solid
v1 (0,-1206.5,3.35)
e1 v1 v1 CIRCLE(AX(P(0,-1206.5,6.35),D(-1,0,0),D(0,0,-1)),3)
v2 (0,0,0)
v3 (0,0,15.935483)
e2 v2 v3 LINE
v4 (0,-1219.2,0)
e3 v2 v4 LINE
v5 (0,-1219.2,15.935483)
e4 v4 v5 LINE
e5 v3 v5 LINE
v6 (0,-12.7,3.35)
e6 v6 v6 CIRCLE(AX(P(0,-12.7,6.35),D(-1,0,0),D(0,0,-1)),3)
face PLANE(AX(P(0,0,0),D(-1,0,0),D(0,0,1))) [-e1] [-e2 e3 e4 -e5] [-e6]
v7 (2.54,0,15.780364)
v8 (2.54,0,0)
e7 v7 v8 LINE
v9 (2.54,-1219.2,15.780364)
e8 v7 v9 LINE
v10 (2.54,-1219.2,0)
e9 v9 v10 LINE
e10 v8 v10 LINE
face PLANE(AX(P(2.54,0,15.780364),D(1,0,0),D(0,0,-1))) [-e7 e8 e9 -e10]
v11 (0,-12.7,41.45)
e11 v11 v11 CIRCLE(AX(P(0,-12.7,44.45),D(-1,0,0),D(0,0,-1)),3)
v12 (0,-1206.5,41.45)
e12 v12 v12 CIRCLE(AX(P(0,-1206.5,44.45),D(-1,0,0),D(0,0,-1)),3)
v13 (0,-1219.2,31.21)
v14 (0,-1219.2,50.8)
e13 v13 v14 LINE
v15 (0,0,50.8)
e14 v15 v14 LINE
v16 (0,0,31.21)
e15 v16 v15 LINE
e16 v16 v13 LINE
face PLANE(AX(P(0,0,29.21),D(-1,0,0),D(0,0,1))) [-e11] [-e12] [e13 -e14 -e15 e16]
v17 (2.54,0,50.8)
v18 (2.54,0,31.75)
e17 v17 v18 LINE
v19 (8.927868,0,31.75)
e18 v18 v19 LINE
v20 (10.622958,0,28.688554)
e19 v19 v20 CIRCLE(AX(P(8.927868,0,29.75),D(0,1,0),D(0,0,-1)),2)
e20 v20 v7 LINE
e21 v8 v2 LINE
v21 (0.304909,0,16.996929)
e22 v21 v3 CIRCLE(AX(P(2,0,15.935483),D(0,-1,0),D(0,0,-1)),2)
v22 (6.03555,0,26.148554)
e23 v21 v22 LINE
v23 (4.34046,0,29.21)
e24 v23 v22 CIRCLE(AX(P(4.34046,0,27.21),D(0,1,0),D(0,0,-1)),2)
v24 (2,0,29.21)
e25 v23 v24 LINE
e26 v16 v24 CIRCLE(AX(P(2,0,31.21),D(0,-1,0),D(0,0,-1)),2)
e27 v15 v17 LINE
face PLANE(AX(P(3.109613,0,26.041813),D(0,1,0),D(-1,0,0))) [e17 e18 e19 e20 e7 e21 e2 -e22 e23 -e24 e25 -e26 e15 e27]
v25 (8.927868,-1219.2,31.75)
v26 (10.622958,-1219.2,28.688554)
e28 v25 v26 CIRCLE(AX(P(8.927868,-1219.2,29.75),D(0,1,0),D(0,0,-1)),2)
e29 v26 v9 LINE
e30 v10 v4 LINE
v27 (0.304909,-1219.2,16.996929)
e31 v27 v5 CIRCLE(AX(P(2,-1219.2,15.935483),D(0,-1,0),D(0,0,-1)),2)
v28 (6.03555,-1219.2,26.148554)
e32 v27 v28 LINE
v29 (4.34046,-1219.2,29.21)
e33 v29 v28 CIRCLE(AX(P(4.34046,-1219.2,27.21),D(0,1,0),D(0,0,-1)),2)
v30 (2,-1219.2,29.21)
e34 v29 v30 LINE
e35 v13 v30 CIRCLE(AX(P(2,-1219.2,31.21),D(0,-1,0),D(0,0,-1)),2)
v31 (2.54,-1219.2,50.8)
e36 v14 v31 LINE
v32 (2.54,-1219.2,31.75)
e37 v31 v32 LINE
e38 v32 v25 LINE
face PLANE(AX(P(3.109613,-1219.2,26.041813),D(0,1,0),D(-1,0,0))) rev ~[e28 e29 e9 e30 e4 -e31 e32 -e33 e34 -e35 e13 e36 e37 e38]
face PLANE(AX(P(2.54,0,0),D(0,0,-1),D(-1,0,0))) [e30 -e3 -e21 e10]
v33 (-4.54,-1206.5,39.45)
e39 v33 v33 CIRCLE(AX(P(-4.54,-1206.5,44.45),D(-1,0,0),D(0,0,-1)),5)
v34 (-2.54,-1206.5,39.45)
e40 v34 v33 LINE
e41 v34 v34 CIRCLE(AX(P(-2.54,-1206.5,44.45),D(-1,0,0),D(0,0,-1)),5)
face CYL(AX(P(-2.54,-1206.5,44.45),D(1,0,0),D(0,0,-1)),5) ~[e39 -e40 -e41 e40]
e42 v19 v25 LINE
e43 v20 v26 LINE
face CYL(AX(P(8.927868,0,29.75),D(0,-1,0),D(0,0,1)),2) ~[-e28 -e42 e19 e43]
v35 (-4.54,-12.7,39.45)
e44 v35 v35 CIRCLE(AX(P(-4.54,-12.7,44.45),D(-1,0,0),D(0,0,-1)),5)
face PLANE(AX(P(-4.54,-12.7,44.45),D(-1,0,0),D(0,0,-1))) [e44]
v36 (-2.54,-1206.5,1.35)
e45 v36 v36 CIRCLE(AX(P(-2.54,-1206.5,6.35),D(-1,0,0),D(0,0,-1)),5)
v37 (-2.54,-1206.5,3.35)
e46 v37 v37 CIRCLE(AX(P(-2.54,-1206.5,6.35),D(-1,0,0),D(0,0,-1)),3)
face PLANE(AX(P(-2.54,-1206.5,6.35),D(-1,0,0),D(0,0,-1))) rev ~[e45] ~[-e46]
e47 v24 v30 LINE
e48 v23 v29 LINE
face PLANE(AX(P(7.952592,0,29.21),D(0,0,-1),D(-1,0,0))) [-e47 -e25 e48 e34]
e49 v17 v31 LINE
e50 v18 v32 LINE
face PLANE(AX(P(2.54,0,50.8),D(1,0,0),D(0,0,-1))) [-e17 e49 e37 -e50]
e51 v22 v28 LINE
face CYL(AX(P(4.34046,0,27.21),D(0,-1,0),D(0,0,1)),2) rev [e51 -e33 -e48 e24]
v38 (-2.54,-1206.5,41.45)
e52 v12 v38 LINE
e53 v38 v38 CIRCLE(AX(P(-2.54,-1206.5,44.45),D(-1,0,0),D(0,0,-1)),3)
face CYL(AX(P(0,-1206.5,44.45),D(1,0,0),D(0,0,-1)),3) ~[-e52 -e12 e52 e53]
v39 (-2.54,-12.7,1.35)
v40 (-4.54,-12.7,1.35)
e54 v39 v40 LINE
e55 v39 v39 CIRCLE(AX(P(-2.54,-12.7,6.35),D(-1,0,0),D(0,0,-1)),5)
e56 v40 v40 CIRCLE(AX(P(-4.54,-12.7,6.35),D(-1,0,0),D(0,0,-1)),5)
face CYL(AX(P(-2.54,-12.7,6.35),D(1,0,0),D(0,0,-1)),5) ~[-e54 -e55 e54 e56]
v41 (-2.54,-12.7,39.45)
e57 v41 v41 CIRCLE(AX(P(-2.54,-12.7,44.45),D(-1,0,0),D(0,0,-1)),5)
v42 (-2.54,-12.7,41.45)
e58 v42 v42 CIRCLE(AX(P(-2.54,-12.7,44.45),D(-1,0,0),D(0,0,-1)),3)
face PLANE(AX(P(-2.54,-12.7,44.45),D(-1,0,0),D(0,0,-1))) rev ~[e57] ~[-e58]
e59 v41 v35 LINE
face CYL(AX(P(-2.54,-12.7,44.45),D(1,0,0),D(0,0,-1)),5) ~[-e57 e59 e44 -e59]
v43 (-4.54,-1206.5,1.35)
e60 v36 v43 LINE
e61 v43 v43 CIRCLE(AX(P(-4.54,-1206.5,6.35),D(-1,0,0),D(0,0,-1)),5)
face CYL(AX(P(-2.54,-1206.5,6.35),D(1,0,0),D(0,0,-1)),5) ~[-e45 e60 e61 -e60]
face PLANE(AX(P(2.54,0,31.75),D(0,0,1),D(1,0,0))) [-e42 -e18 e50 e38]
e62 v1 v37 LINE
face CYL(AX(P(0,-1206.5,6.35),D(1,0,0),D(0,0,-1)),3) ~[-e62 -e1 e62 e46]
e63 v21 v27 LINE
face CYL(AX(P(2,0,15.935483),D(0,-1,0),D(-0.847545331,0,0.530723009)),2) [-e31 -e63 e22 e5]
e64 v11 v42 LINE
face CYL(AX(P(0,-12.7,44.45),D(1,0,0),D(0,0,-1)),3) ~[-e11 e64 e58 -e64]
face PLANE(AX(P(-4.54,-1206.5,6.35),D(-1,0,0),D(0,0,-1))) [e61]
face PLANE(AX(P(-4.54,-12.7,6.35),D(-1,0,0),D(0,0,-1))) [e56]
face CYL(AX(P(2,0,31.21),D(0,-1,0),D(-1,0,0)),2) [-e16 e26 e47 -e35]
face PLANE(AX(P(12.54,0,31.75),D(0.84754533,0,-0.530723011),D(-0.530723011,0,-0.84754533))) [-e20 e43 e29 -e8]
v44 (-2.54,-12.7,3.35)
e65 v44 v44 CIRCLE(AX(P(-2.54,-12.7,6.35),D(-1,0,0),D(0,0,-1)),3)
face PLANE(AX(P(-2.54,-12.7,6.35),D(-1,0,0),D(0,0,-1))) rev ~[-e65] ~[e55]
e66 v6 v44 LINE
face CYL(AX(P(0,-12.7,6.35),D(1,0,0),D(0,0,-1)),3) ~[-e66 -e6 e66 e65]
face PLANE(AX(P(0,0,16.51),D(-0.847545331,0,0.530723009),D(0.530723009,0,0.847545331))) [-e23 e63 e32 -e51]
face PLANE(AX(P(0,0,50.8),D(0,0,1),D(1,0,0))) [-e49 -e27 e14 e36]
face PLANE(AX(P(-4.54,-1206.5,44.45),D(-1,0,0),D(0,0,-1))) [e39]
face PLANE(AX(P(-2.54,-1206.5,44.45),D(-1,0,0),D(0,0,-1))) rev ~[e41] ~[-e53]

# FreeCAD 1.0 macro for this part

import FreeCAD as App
import Part
import Sketcher

V = App.Vector
Q = App.Units.Quantity


def edges_at(feature, points):
    """Names of the edges that pass closest to the given points."""
    edges = feature.Shape.Edges
    near = lambda p: min(range(len(edges)), key=lambda i: edges[i].distToShape(Part.Vertex(*p))[0])
    return sorted({f"Edge{near(p) + 1}" for p in points})

doc = App.newDocument("Part")
body = doc.addObject("PartDesign::Body", "Body")

# Sketch on XZ plane
sketch1 = body.newObject("Sketcher::SketchObject", "Sketch")
sketch1.AttachmentSupport = (doc.getObject("XZ_Plane"), [""])
sketch1.MapMode = "FlatFace"
sketch1.addGeometry([
    Part.LineSegment(V(0, 16.5, 0), V(0, 0, 0)),  # 0
    Part.LineSegment(V(0, 0, 0), V(2.5, 0, 0)),  # 1
    Part.LineSegment(V(2.5, 0, 0), V(2.5, 15.8, 0)),  # 2
    Part.LineSegment(V(2.5, 15.8, 0), V(12.5, 31.8, 0)),  # 3
    Part.LineSegment(V(12.5, 31.8, 0), V(2.5, 31.8, 0)),  # 4
    Part.LineSegment(V(2.5, 31.8, 0), V(2.5, 50.8, 0)),  # 5
    Part.LineSegment(V(2.5, 50.8, 0), V(0, 50.8, 0)),  # 6
    Part.LineSegment(V(0, 50.8, 0), V(0, 29.2, 0)),  # 7
    Part.LineSegment(V(0, 29.2, 0), V(8, 29.2, 0)),  # 8
    Part.LineSegment(V(8, 29.2, 0), V(0, 16.5, 0)),  # 9
], False)
sketch1.addConstraint([
    Sketcher.Constraint("Coincident", 0, 2, 1, 1),
    Sketcher.Constraint("Coincident", 1, 2, 2, 1),
    Sketcher.Constraint("Coincident", 2, 2, 3, 1),
    Sketcher.Constraint("Coincident", 3, 2, 4, 1),
    Sketcher.Constraint("Coincident", 4, 2, 5, 1),
    Sketcher.Constraint("Coincident", 5, 2, 6, 1),
    Sketcher.Constraint("Coincident", 6, 2, 7, 1),
    Sketcher.Constraint("Coincident", 7, 2, 8, 1),
    Sketcher.Constraint("Coincident", 8, 2, 9, 1),
    Sketcher.Constraint("Coincident", 9, 2, 0, 1),
    Sketcher.Constraint("Vertical", 0),
    Sketcher.Constraint("Horizontal", 1),
    Sketcher.Constraint("Vertical", 2),
    Sketcher.Constraint("Horizontal", 4),
    Sketcher.Constraint("Vertical", 5),
    Sketcher.Constraint("Horizontal", 6),
    Sketcher.Constraint("Vertical", 7),
    Sketcher.Constraint("Horizontal", 8),
    Sketcher.Constraint("Coincident", 0, 2, -1, 1),
    Sketcher.Constraint("PointOnObject", 6, 2, -2),
    Sketcher.Constraint("Parallel", 3, 9),
    Sketcher.Constraint("Vertical", 2, 2, 4, 2),
    Sketcher.Constraint("DistanceX", 1, 1, 1, 2, Q("0.1 in")),
    Sketcher.Constraint("DistanceY", -1, 1, 5, 2, Q("2 in")),
    Sketcher.Constraint("DistanceY", 0, 2, 0, 1, Q("0.65 in")),
    Sketcher.Constraint("DistanceY", 5, 1, 5, 2, Q("0.75 in")),
    Sketcher.Constraint("DistanceY", 7, 2, 7, 1, Q("0.85 in")),
    Sketcher.Constraint("DistanceX", 4, 2, 4, 1, 10.0),
    Sketcher.Constraint("Distance", 3, 18.842221),
])
pad1 = body.newObject("PartDesign::Pad", "Pad")
pad1.Profile = sketch1
pad1.Length = Q("48 in")

# Sketch on YZ plane
sketch2 = body.newObject("Sketcher::SketchObject", "Sketch001")
sketch2.AttachmentSupport = (doc.getObject("YZ_Plane"), [""])
sketch2.MapMode = "FlatFace"
sketch2.addGeometry([
    Part.Circle(V(-12.7, 44.5, 0), V(0, 0, 1), 3),
    Part.Circle(V(-12.7, 6.3, 0), V(0, 0, 1), 3),
    Part.Circle(V(-1206.5, 44.5, 0), V(0, 0, 1), 3),
    Part.Circle(V(-1206.5, 6.3, 0), V(0, 0, 1), 3),
], False)
sketch2.addConstraint([
    Sketcher.Constraint("Equal", 0, 1),
    Sketcher.Constraint("Equal", 1, 2),
    Sketcher.Constraint("Equal", 2, 3),
    Sketcher.Constraint("Horizontal", 0, 3, 2, 3),
    Sketcher.Constraint("Horizontal", 1, 3, 3, 3),
    Sketcher.Constraint("Vertical", 0, 3, 1, 3),
    Sketcher.Constraint("Vertical", 2, 3, 3, 3),
    Sketcher.Constraint("DistanceX", 2, 3, 0, 3, Q("47 in")),
    Sketcher.Constraint("DistanceX", 0, 3, -1, 1, Q("0.5 in")),
    Sketcher.Constraint("DistanceY", 1, 3, 0, 3, Q("1.5 in")),
    Sketcher.Constraint("Diameter", 0, 6.0),
    Sketcher.Constraint("DistanceY", -1, 1, 0, 3, Q("1.75 in")),
])
pad2 = body.newObject("PartDesign::Pad", "Pad001")
pad2.Profile = sketch2
pad2.Length = Q("0.1 in")
pad2.Reversed = True

# Sketch on YZ plane
sketch3 = body.newObject("Sketcher::SketchObject", "Sketch002")
sketch3.AttachmentSupport = (doc.getObject("YZ_Plane"), [""])
sketch3.MapMode = "FlatFace"
sketch3.AttachmentOffset = App.Placement(V(0, 0, -0.1 * 25.4), App.Rotation())
sketch3.addGeometry([
    Part.Circle(V(-13, 44, 0), V(0, 0, 1), 5),
    Part.Circle(V(-13, 6, 0), V(0, 0, 1), 5),
    Part.Circle(V(-1206, 44, 0), V(0, 0, 1), 5),
    Part.Circle(V(-1206, 6, 0), V(0, 0, 1), 5),
], False)
sketch3.addConstraint([
    Sketcher.Constraint("Equal", 0, 1),
    Sketcher.Constraint("Equal", 1, 2),
    Sketcher.Constraint("Equal", 2, 3),
    Sketcher.Constraint("Horizontal", 0, 3, 2, 3),
    Sketcher.Constraint("Horizontal", 1, 3, 3, 3),
    Sketcher.Constraint("Vertical", 0, 3, 1, 3),
    Sketcher.Constraint("Vertical", 2, 3, 3, 3),
    Sketcher.Constraint("DistanceX", 2, 3, 0, 3, Q("47 in")),
    Sketcher.Constraint("DistanceX", 0, 3, -1, 1, Q("0.5 in")),
    Sketcher.Constraint("DistanceY", 1, 3, 0, 3, Q("1.5 in")),
    Sketcher.Constraint("Diameter", 0, 10.0),
    Sketcher.Constraint("DistanceY", -1, 1, 0, 3, Q("1.75 in")),
])
pad3 = body.newObject("PartDesign::Pad", "Pad002")
pad3.Profile = sketch3
pad3.Length = 2
pad3.Reversed = True
doc.recompute()

fillet = body.newObject("PartDesign::Fillet", "Fillet")
fillet.Base = (pad3, edges_at(pad3, [
    (12.54, -609.6, 31.75),
    (0, -609.6, 29.21),
    (0, -609.6, 16.51),
    (7.953, -609.6, 29.21),
]))
fillet.Radius = 2

doc.recompute()
